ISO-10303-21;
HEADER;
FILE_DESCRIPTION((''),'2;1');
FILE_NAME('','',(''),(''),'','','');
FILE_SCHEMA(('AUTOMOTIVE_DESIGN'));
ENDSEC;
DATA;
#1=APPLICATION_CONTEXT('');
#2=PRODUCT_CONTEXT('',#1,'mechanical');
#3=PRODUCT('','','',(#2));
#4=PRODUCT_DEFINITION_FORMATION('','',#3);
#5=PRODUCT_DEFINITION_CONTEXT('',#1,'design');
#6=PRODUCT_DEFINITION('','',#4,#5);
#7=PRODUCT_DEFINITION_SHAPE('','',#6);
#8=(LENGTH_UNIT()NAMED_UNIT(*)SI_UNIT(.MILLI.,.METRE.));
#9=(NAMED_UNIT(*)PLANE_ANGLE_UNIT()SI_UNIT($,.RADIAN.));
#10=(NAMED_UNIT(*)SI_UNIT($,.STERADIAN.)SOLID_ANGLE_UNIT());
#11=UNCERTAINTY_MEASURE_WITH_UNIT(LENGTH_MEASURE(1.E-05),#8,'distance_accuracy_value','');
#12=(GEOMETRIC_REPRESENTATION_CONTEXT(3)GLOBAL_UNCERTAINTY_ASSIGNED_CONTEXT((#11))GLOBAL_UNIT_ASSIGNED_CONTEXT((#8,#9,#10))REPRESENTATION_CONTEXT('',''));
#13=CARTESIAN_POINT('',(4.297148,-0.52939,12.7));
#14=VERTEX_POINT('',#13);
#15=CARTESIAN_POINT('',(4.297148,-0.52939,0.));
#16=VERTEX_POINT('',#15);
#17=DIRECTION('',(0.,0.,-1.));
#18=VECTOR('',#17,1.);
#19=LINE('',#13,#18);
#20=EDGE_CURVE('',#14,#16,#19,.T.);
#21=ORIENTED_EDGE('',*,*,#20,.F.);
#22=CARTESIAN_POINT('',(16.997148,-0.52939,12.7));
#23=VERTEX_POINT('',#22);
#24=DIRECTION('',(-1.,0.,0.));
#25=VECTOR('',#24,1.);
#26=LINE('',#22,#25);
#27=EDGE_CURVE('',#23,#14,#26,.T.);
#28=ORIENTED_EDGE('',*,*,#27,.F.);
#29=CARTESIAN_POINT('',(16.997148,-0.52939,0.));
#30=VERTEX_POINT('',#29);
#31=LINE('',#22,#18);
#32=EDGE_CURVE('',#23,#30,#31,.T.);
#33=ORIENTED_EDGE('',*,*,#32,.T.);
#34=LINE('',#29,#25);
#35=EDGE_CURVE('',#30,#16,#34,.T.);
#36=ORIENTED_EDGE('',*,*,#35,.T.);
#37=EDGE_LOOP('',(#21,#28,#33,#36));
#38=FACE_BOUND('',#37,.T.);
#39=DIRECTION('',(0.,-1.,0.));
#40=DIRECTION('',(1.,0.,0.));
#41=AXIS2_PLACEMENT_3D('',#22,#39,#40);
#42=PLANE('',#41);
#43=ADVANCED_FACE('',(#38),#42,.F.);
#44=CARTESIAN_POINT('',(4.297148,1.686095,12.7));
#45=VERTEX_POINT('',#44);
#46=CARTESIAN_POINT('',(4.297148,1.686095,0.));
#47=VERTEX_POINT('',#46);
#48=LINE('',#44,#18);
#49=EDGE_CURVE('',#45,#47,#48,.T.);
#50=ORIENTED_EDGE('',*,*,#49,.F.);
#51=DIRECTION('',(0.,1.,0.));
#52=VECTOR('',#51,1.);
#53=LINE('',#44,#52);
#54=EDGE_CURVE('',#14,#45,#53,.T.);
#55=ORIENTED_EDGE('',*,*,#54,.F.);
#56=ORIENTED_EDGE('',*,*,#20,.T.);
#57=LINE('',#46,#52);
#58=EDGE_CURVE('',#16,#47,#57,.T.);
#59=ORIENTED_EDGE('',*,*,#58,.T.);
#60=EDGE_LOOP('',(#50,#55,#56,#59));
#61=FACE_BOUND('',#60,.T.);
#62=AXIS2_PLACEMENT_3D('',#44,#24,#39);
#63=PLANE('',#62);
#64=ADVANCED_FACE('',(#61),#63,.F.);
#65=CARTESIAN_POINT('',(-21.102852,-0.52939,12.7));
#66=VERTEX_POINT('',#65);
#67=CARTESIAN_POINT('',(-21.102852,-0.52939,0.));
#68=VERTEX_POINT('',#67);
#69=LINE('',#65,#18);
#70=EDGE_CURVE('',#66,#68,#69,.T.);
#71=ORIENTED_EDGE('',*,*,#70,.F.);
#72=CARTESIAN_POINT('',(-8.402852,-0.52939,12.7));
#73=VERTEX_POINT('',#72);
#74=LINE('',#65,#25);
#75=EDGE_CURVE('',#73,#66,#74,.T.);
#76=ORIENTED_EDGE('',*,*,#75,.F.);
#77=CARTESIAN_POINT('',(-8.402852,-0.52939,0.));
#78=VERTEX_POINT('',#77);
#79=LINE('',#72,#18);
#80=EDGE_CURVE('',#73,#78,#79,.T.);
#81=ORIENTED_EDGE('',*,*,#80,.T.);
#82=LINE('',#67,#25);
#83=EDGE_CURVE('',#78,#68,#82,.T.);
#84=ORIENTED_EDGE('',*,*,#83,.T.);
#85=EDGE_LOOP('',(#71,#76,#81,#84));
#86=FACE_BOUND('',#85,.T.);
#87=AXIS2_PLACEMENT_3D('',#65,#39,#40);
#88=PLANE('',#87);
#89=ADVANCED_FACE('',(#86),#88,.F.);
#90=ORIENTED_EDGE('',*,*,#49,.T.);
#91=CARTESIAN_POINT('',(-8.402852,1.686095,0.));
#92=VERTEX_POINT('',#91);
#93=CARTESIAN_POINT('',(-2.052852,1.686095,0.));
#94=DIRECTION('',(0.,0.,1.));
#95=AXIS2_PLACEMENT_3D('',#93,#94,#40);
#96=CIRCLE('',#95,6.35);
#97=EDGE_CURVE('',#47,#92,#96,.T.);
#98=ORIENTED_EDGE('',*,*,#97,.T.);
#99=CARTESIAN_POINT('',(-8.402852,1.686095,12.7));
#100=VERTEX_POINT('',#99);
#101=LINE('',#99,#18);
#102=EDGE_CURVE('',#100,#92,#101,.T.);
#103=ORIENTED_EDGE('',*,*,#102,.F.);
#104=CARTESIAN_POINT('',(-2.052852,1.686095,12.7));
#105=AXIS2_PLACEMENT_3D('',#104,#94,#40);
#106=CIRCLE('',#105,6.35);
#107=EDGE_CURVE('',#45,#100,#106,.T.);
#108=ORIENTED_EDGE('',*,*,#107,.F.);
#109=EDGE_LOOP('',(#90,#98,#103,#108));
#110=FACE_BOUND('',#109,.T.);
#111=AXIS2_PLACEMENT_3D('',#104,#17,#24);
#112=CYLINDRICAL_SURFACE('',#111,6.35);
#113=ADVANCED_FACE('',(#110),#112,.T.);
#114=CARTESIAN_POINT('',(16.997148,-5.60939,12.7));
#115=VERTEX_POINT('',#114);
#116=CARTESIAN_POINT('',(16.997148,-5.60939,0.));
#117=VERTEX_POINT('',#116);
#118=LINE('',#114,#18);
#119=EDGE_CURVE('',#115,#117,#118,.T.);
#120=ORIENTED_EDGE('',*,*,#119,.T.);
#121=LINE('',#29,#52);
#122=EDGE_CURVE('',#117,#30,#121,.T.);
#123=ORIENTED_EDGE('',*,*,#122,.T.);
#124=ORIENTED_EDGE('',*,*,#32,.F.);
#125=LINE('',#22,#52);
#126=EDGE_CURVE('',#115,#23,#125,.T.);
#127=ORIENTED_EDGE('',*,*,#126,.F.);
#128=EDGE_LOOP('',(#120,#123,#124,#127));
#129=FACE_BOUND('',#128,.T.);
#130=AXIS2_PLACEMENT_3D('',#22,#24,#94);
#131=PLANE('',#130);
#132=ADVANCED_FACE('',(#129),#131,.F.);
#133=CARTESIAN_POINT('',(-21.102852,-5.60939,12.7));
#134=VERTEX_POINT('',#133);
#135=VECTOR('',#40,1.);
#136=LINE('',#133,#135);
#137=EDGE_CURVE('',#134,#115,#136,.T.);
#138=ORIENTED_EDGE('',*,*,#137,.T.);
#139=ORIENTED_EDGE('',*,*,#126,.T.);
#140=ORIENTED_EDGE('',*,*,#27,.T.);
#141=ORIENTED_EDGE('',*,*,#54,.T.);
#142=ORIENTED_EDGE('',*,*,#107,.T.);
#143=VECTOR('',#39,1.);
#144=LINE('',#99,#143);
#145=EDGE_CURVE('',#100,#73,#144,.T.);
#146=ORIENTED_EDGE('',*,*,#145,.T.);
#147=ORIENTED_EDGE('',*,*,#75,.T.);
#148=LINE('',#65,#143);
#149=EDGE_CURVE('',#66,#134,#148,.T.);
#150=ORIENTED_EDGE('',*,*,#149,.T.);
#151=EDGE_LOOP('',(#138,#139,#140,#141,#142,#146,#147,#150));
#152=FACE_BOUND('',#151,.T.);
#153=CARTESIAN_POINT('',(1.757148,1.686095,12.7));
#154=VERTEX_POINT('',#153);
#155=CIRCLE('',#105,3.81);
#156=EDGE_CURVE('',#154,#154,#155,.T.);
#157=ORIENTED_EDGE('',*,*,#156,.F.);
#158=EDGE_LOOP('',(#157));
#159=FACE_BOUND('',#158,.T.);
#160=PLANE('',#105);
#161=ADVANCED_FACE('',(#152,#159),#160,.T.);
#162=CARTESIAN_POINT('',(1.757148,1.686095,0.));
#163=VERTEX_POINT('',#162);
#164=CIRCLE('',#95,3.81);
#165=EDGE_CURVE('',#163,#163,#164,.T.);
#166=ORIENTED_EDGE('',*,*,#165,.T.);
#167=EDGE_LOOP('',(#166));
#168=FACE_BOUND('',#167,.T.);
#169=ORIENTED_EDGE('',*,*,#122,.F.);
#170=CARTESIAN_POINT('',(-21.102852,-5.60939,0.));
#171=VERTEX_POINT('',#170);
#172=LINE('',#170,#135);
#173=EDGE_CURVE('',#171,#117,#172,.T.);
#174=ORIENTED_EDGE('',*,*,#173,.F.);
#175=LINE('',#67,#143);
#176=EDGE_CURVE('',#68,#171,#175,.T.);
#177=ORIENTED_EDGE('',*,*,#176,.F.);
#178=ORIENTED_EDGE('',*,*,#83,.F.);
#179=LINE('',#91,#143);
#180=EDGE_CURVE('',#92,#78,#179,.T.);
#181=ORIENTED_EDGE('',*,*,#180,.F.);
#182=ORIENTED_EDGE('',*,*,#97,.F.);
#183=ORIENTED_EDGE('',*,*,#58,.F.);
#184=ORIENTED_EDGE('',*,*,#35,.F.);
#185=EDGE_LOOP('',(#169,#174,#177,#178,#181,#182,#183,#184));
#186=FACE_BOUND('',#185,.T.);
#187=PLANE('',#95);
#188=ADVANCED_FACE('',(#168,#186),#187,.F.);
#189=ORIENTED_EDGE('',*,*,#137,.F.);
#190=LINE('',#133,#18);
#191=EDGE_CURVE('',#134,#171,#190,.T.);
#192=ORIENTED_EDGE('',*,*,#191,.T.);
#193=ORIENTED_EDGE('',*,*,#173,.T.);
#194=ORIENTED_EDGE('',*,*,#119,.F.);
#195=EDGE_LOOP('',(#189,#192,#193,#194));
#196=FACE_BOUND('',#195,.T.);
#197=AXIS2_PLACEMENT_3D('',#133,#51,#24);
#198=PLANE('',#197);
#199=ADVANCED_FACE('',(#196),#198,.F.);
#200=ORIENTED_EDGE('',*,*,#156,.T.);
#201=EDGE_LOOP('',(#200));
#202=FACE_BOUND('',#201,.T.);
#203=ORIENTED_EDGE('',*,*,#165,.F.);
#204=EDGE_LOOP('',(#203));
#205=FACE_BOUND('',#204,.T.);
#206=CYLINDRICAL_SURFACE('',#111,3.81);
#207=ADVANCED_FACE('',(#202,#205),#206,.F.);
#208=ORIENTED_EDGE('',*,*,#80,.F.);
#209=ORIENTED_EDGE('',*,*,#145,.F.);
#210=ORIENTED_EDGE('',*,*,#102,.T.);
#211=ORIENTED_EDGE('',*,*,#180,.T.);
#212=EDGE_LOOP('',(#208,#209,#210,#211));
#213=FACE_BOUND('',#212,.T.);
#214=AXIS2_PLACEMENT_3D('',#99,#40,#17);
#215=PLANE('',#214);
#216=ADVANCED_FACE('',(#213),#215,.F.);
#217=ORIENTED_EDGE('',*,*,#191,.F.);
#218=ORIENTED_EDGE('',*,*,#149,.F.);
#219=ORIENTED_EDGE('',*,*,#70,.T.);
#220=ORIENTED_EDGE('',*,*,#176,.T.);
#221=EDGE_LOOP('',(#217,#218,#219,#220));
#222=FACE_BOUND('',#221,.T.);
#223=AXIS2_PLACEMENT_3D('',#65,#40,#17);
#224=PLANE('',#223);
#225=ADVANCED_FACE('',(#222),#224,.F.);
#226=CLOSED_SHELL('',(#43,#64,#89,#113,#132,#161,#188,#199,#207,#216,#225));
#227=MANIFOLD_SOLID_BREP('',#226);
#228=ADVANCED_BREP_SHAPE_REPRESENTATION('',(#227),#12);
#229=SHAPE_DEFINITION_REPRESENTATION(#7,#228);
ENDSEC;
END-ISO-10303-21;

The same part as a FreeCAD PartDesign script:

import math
import FreeCAD as App
import Part
import Sketcher

V = App.Vector
Q = App.Units.Quantity

doc = App.newDocument("Part")
params = doc.addObject("Spreadsheet::Sheet", "Params")
for row, (alias, value) in enumerate([
    ("sketch1_diameter", "0.3 in"),
    ("sketch1_radius", "0.25 in"),
    ("sketch1_width", "1.5 in"),
    ("sketch1_height", "0.2 in"),
    ("pad1_length", "0.5 in"),
], start=1):
    params.set(f"A{row}", alias)
    params.set(f"B{row}", "=" + value)
    params.setAlias(f"B{row}", alias)

body = doc.addObject("PartDesign::Body", "Body")

sketch1 = doc.addObject("Sketcher::SketchObject", "Sketch")
body.addObject(sketch1)
sketch1.AttachmentSupport = (doc.XY_Plane, [""])
sketch1.MapMode = "FlatFace"
sketch1.addGeometry([
    Part.LineSegment(V(-21.1, -0.5, 0), V(-21.1, -5.6, 0)),
    Part.LineSegment(V(-21.1, -5.6, 0), V(17, -5.6, 0)),
    Part.LineSegment(V(17, -5.6, 0), V(17, -0.5, 0)),
    Part.LineSegment(V(17, -0.5, 0), V(4.3, -0.5, 0)),
    Part.LineSegment(V(4.3, -0.5, 0), V(4.3, 1.7, 0)),
    Part.ArcOfCircle(Part.Circle(V(-2.1, 1.7, 0), V(0, 0, 1), 6.3), math.radians(0), math.radians(180)),
    Part.LineSegment(V(-8.4, 1.7, 0), V(-8.4, -0.5, 0)),
    Part.LineSegment(V(-8.4, -0.5, 0), V(-21.1, -0.5, 0)),
    Part.Circle(V(-2.1, 1.7, 0), V(0, 0, 1), 3.8),
], False)
sketch1.addConstraint([
    Sketcher.Constraint("Coincident", 0, 2, 1, 1),
    Sketcher.Constraint("Coincident", 1, 2, 2, 1),
    Sketcher.Constraint("Coincident", 2, 2, 3, 1),
    Sketcher.Constraint("Coincident", 3, 2, 4, 1),
    Sketcher.Constraint("Tangent", 4, 2, 5, 1),
    Sketcher.Constraint("Tangent", 5, 2, 6, 1),
    Sketcher.Constraint("Coincident", 6, 2, 7, 1),
    Sketcher.Constraint("Coincident", 7, 2, 0, 1),
    Sketcher.Constraint("Vertical", 0),
    Sketcher.Constraint("Horizontal", 1),
    Sketcher.Constraint("Vertical", 2),
    Sketcher.Constraint("Horizontal", 3),
    Sketcher.Constraint("Vertical", 4),
    Sketcher.Constraint("Vertical", 6),
    Sketcher.Constraint("Horizontal", 7),
    Sketcher.Constraint("Coincident", 8, 3, 5, 3),
    Sketcher.Constraint("Horizontal", 3, 2, 6, 2),
    Sketcher.Constraint("Equal", 3, 7),
    Sketcher.Constraint("Diameter", 8, Q("0.3 in")),
    Sketcher.Constraint("Radius", 5, Q("0.25 in")),
    Sketcher.Constraint("DistanceX", 1, 1, 1, 2, Q("1.5 in")),
    Sketcher.Constraint("DistanceY", 0, 2, 0, 1, Q("0.2 in")),
    Sketcher.Constraint("DistanceY", 4, 1, 4, 2, 2.215486),
    Sketcher.Constraint("DistanceX", 5, 3, -1, 1, 2.052852),
    Sketcher.Constraint("DistanceY", 0, 2, -1, 1, 5.60939),
])
sketch1.setExpression("Constraints[18]", "Params.sketch1_diameter")
sketch1.setExpression("Constraints[19]", "Params.sketch1_radius")
sketch1.setExpression("Constraints[20]", "Params.sketch1_width")
sketch1.setExpression("Constraints[21]", "Params.sketch1_height")
pad1 = doc.addObject("PartDesign::Pad", "Pad")
body.addObject(pad1)
pad1.Profile = sketch1
pad1.setExpression("Length", "Params.pad1_length")

doc.recompute()
